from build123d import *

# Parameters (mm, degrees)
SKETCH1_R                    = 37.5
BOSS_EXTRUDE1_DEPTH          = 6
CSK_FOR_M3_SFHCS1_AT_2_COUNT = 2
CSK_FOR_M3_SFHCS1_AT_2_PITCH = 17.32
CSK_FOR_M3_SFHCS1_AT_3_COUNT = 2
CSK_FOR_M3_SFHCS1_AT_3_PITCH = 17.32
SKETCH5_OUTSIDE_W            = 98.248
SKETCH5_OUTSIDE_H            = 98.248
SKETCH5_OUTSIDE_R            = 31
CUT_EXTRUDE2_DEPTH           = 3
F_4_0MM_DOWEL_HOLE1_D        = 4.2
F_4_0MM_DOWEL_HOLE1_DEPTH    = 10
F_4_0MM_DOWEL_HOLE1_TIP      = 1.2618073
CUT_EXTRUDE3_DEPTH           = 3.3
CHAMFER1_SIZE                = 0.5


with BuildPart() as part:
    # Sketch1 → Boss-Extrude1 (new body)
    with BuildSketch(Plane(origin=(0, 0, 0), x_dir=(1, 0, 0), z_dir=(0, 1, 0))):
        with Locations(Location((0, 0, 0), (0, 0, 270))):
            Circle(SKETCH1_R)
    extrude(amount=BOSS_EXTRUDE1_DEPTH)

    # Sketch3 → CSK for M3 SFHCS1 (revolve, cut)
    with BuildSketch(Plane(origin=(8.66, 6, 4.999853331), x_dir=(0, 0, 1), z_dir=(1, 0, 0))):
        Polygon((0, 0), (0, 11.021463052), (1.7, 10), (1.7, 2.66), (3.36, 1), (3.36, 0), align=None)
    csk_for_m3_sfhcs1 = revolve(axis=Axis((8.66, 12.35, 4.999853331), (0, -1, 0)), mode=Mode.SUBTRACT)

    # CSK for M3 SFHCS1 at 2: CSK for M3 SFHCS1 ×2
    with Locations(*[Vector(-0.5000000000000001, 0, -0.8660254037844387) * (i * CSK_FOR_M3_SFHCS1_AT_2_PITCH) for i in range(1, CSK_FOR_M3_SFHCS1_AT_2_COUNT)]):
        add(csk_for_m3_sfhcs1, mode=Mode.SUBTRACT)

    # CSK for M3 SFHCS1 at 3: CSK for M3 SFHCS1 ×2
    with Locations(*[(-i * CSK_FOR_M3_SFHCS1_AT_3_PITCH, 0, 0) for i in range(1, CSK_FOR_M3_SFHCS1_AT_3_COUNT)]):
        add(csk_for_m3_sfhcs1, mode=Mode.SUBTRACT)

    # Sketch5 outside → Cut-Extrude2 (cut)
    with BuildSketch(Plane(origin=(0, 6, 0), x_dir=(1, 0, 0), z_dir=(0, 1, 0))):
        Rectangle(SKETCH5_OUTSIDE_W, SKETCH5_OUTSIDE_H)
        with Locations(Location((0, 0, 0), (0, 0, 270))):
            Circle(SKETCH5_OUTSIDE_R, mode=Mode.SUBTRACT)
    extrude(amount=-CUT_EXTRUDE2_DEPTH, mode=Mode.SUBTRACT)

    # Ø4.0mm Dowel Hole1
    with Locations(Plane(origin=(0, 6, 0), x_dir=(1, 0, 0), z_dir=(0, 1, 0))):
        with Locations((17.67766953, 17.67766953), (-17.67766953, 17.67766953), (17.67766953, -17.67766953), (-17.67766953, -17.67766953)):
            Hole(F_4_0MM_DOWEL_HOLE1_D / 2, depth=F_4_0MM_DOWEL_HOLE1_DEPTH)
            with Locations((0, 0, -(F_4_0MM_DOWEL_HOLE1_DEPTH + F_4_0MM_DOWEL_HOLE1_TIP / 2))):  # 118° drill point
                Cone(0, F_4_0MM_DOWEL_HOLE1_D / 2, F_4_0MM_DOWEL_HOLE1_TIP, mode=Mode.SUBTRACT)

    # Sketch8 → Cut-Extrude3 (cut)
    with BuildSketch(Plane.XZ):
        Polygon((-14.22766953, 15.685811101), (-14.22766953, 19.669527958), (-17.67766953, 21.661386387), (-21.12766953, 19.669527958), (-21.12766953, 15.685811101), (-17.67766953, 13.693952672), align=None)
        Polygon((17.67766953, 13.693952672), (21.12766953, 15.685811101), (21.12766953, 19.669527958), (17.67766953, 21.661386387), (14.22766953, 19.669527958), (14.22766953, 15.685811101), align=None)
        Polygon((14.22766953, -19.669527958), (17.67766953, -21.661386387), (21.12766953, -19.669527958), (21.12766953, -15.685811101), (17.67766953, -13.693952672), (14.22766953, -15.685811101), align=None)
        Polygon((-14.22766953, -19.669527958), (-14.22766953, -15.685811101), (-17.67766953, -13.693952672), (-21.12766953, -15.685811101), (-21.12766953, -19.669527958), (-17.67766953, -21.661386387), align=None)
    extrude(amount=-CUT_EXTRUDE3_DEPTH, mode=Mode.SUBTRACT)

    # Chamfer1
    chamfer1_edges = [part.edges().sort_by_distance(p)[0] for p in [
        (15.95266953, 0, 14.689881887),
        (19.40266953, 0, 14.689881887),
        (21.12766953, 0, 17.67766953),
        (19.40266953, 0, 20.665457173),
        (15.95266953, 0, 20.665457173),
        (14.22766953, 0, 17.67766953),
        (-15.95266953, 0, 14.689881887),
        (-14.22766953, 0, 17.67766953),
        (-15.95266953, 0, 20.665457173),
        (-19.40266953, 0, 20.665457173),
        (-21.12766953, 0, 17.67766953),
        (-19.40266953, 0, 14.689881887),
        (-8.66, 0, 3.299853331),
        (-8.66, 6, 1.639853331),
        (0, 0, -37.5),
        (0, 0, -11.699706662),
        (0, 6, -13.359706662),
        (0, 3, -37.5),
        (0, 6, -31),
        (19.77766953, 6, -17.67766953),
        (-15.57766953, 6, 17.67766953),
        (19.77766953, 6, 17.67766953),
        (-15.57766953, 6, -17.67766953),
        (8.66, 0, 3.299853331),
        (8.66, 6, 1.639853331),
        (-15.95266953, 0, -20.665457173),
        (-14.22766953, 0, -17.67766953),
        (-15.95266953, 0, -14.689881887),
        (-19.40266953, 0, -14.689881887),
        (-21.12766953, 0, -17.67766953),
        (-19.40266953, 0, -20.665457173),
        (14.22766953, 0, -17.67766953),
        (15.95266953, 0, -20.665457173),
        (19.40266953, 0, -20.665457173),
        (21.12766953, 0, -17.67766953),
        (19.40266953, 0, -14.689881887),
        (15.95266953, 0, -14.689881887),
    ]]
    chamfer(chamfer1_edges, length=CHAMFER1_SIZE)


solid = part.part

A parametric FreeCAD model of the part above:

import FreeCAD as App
import Part
import Sketcher
Q = App.Units.Quantity


def edges_at(feature, points):
    """Names of the edges that pass closest to the given points."""
    edges = feature.Shape.Edges
    near = lambda p: min(range(len(edges)), key=lambda i: edges[i].distToShape(Part.Vertex(*p))[0])
    return sorted({f"Edge{near(p) + 1}" for p in points})

doc = App.newDocument("Part")
body = doc.addObject("PartDesign::Body", "Body")

# Sketch on XZ plane
sketch1 = body.newObject("Sketcher::SketchObject", "Sketch")
sketch1.AttachmentSupport = (doc.getObject("XZ_Plane"), [""])
sketch1.MapMode = "FlatFace"
sketch1.addGeometry(Part.Circle(App.Vector(0, 0, 0), App.Vector(0, 0, 1), 37.5), False)
sketch1.addConstraint(Sketcher.Constraint("Coincident", 0, 3, -1, 1))
sketch1.addConstraint(Sketcher.Constraint("Diameter", 0, Q("75 mm")))
pad1 = body.newObject("PartDesign::Pad", "Pad")
pad1.Profile = sketch1
pad1.Length = 6
pad1.Reversed = True

# Sketch on YZ plane
sketch2 = body.newObject("Sketcher::SketchObject", "Sketch001")
sketch2.AttachmentSupport = (doc.getObject("YZ_Plane"), [""])
sketch2.MapMode = "FlatFace"
sketch2.AttachmentOffset = App.Placement(App.Vector(0, 0, 8.66), App.Rotation())
sketch2.addGeometry(Part.LineSegment(App.Vector(-5.021463, 4.999853, 0), App.Vector(6, 4.999853, 0)), False)
sketch2.addGeometry(Part.LineSegment(App.Vector(6, 4.999853, 0), App.Vector(6, 8.359853, 0)), False)
sketch2.addGeometry(Part.LineSegment(App.Vector(6, 8.359853, 0), App.Vector(5, 8.359853, 0)), False)
sketch2.addGeometry(Part.LineSegment(App.Vector(5, 8.359853, 0), App.Vector(3.34, 6.699853, 0)), False)
sketch2.addGeometry(Part.LineSegment(App.Vector(3.34, 6.699853, 0), App.Vector(-4, 6.699853, 0)), False)
sketch2.addGeometry(Part.LineSegment(App.Vector(-4, 6.699853, 0), App.Vector(-5.021463, 4.999853, 0)), False)
sketch2.addGeometry(Part.LineSegment(App.Vector(6, 4.999853, 0), App.Vector(-5.021463, 4.999853, 0)), True)  # axis
sketch2.addConstraint(Sketcher.Constraint("Coincident", 0, 2, 1, 1))
sketch2.addConstraint(Sketcher.Constraint("Coincident", 1, 2, 2, 1))
sketch2.addConstraint(Sketcher.Constraint("Coincident", 2, 2, 3, 1))
sketch2.addConstraint(Sketcher.Constraint("Coincident", 3, 2, 4, 1))
sketch2.addConstraint(Sketcher.Constraint("Coincident", 4, 2, 5, 1))
sketch2.addConstraint(Sketcher.Constraint("Coincident", 5, 2, 0, 1))
sketch2.addConstraint(Sketcher.Constraint("Horizontal", 0))
sketch2.addConstraint(Sketcher.Constraint("Vertical", 1))
sketch2.addConstraint(Sketcher.Constraint("Horizontal", 2))
sketch2.addConstraint(Sketcher.Constraint("Horizontal", 4))
sketch2.addConstraint(Sketcher.Constraint("Horizontal", 6))
sketch2.addConstraint(Sketcher.Constraint("Coincident", 6, 1, 0, 2))
sketch2.addConstraint(Sketcher.Constraint("Equal", 0, 6))
sketch2.addConstraint(Sketcher.Constraint("DistanceX", 2, 2, 2, 1, Q("1 mm")))
sketch2.addConstraint(Sketcher.Constraint("Angle", 3, Q("-135 deg")))
sketch2.addConstraint(Sketcher.Constraint("Angle", 5, Q("-121 deg")))
sketch2.addConstraint(Sketcher.Constraint("DistanceX", -1, 1, 0, 2, Q("6 mm")))
sketch2.addConstraint(Sketcher.Constraint("DistanceX", 4, 2, -1, 1, Q("4 mm")))
sketch2.addConstraint(Sketcher.Constraint("DistanceX", 4, 2, 4, 1, Q("7.34 mm")))
sketch2.addConstraint(Sketcher.Constraint("DistanceY", 1, 1, 1, 2, Q("3.36 mm")))
sketch2.addConstraint(Sketcher.Constraint("DistanceY", -1, 1, 0, 2, Q("4.999853 mm")))
groove = body.newObject("PartDesign::Groove", "Groove")
groove.Profile = sketch2
groove.ReferenceAxis = (sketch2, ["Axis0"])
groove.Angle = 360
doc.recompute()

datumline = body.newObject("PartDesign::Line", "DatumLine")
datumline.Placement = App.Placement(App.Vector(0, 0, 0), App.Rotation(App.Vector(0, 0, 1), App.Vector(-0.5, 0, -0.866025404)))
linearpattern = body.newObject("PartDesign::LinearPattern", "LinearPattern")
linearpattern.Originals = [groove]
linearpattern.Direction = (datumline, [""])
linearpattern.Mode = "offset"
linearpattern.Offset = 17.32
linearpattern.Occurrences = 2
body.Tip = linearpattern
doc.recompute()

linearpattern2 = body.newObject("PartDesign::LinearPattern", "LinearPattern001")
linearpattern2.Originals = [groove]
linearpattern2.Direction = (doc.getObject("X_Axis"), [""])
linearpattern2.Mode = "offset"
linearpattern2.Offset = 17.32
linearpattern2.Occurrences = 2
linearpattern2.Reversed = True
body.Tip = linearpattern2

# Sketch on XZ plane
sketch3 = body.newObject("Sketcher::SketchObject", "Sketch002")
sketch3.AttachmentSupport = (doc.getObject("XZ_Plane"), [""])
sketch3.MapMode = "FlatFace"
sketch3.AttachmentOffset = App.Placement(App.Vector(0, 0, -6), App.Rotation())
sketch3.addGeometry(Part.LineSegment(App.Vector(-49.124, -49.124, 0), App.Vector(-49.124, 49.124, 0)), False)
sketch3.addGeometry(Part.LineSegment(App.Vector(-49.124, 49.124, 0), App.Vector(49.124, 49.124, 0)), False)
sketch3.addGeometry(Part.LineSegment(App.Vector(49.124, 49.124, 0), App.Vector(49.124, -49.124, 0)), False)
sketch3.addGeometry(Part.LineSegment(App.Vector(49.124, -49.124, 0), App.Vector(-49.124, -49.124, 0)), False)
sketch3.addGeometry(Part.Circle(App.Vector(0, 0, 0), App.Vector(0, 0, 1), 31), False)
sketch3.addConstraint(Sketcher.Constraint("Coincident", 0, 2, 1, 1))
sketch3.addConstraint(Sketcher.Constraint("Coincident", 1, 2, 2, 1))
sketch3.addConstraint(Sketcher.Constraint("Coincident", 2, 2, 3, 1))
sketch3.addConstraint(Sketcher.Constraint("Coincident", 3, 2, 0, 1))
sketch3.addConstraint(Sketcher.Constraint("Vertical", 0))
sketch3.addConstraint(Sketcher.Constraint("Horizontal", 1))
sketch3.addConstraint(Sketcher.Constraint("Vertical", 2))
sketch3.addConstraint(Sketcher.Constraint("Horizontal", 3))
sketch3.addConstraint(Sketcher.Constraint("Coincident", 4, 3, -1, 1))
sketch3.addConstraint(Sketcher.Constraint("Symmetric", 0, 2, 2, 2, -1, 1))
sketch3.addConstraint(Sketcher.Constraint("Equal", 3, 0))
sketch3.addConstraint(Sketcher.Constraint("Diameter", 4, Q("62 mm")))
sketch3.addConstraint(Sketcher.Constraint("DistanceX", 1, 1, 1, 2, Q("98.248 mm")))
pocket1 = body.newObject("PartDesign::Pocket", "Pocket")
pocket1.Profile = sketch3
pocket1.Length = 3
pocket1.Reversed = True

# Sketch on XZ plane
sketch4 = body.newObject("Sketcher::SketchObject", "Sketch003")
sketch4.AttachmentSupport = (doc.getObject("XZ_Plane"), [""])
sketch4.MapMode = "FlatFace"
sketch4.AttachmentOffset = App.Placement(App.Vector(0, 0, -6), App.Rotation())
sketch4.addGeometry(Part.Circle(App.Vector(17.67767, -17.67767, 0), App.Vector(0, 0, 1), 2.1), False)
sketch4.addGeometry(Part.Circle(App.Vector(-17.67767, -17.67767, 0), App.Vector(0, 0, 1), 2.1), False)
sketch4.addGeometry(Part.Circle(App.Vector(17.67767, 17.67767, 0), App.Vector(0, 0, 1), 2.1), False)
sketch4.addGeometry(Part.Circle(App.Vector(-17.67767, 17.67767, 0), App.Vector(0, 0, 1), 2.1), False)
sketch4.addConstraint(Sketcher.Constraint("Equal", 0, 1))
sketch4.addConstraint(Sketcher.Constraint("Equal", 1, 2))
sketch4.addConstraint(Sketcher.Constraint("Equal", 2, 3))
sketch4.addConstraint(Sketcher.Constraint("Symmetric", 1, 3, 2, 3, -1, 1))
sketch4.addConstraint(Sketcher.Constraint("Symmetric", 0, 3, 3, 3, -1, 1))
sketch4.addConstraint(Sketcher.Constraint("Symmetric", 0, 3, 1, 3, -2))
sketch4.addConstraint(Sketcher.Constraint("Diameter", 0, Q("4.2 mm")))
sketch4.addConstraint(Sketcher.Constraint("DistanceX", -1, 1, 0, 3, Q("17.67767 mm")))
sketch4.addConstraint(Sketcher.Constraint("DistanceY", 0, 3, -1, 1, Q("17.67767 mm")))
doc.recompute()
hole = body.newObject("PartDesign::Hole", "Hole")
hole.Profile = sketch4
hole.ThreadType = "None"
hole.Diameter = 4.2
hole.DepthType = "Dimension"
hole.Depth = 10
hole.DrillPoint = "Angled"
hole.DrillPointAngle = 118
hole.Reversed = True

# Sketch on XZ plane
sketch5 = body.newObject("Sketcher::SketchObject", "Sketch004")
sketch5.AttachmentSupport = (doc.getObject("XZ_Plane"), [""])
sketch5.MapMode = "FlatFace"
sketch5.addGeometry(Part.LineSegment(App.Vector(-14.22767, 15.685811, 0), App.Vector(-14.22767, 19.669528, 0)), False)
sketch5.addGeometry(Part.LineSegment(App.Vector(-14.22767, 19.669528, 0), App.Vector(-17.67767, 21.661386, 0)), False)
sketch5.addGeometry(Part.LineSegment(App.Vector(-17.67767, 21.661386, 0), App.Vector(-21.12767, 19.669528, 0)), False)
sketch5.addGeometry(Part.LineSegment(App.Vector(-21.12767, 19.669528, 0), App.Vector(-21.12767, 15.685811, 0)), False)
sketch5.addGeometry(Part.LineSegment(App.Vector(-21.12767, 15.685811, 0), App.Vector(-17.67767, 13.693953, 0)), False)
sketch5.addGeometry(Part.LineSegment(App.Vector(-17.67767, 13.693953, 0), App.Vector(-14.22767, 15.685811, 0)), False)
sketch5.addGeometry(Part.LineSegment(App.Vector(17.67767, 13.693953, 0), App.Vector(21.12767, 15.685811, 0)), False)
sketch5.addGeometry(Part.LineSegment(App.Vector(21.12767, 15.685811, 0), App.Vector(21.12767, 19.669528, 0)), False)
sketch5.addGeometry(Part.LineSegment(App.Vector(21.12767, 19.669528, 0), App.Vector(17.67767, 21.661386, 0)), False)
sketch5.addGeometry(Part.LineSegment(App.Vector(17.67767, 21.661386, 0), App.Vector(14.22767, 19.669528, 0)), False)
sketch5.addGeometry(Part.LineSegment(App.Vector(14.22767, 19.669528, 0), App.Vector(14.22767, 15.685811, 0)), False)
sketch5.addGeometry(Part.LineSegment(App.Vector(14.22767, 15.685811, 0), App.Vector(17.67767, 13.693953, 0)), False)
sketch5.addGeometry(Part.LineSegment(App.Vector(14.22767, -19.669528, 0), App.Vector(17.67767, -21.661386, 0)), False)
sketch5.addGeometry(Part.LineSegment(App.Vector(17.67767, -21.661386, 0), App.Vector(21.12767, -19.669528, 0)), False)
sketch5.addGeometry(Part.LineSegment(App.Vector(21.12767, -19.669528, 0), App.Vector(21.12767, -15.685811, 0)), False)
sketch5.addGeometry(Part.LineSegment(App.Vector(21.12767, -15.685811, 0), App.Vector(17.67767, -13.693953, 0)), False)
sketch5.addGeometry(Part.LineSegment(App.Vector(17.67767, -13.693953, 0), App.Vector(14.22767, -15.685811, 0)), False)
sketch5.addGeometry(Part.LineSegment(App.Vector(14.22767, -15.685811, 0), App.Vector(14.22767, -19.669528, 0)), False)
sketch5.addGeometry(Part.LineSegment(App.Vector(-14.22767, -19.669528, 0), App.Vector(-14.22767, -15.685811, 0)), False)
sketch5.addGeometry(Part.LineSegment(App.Vector(-14.22767, -15.685811, 0), App.Vector(-17.67767, -13.693953, 0)), False)
sketch5.addGeometry(Part.LineSegment(App.Vector(-17.67767, -13.693953, 0), App.Vector(-21.12767, -15.685811, 0)), False)
sketch5.addGeometry(Part.LineSegment(App.Vector(-21.12767, -15.685811, 0), App.Vector(-21.12767, -19.669528, 0)), False)
sketch5.addGeometry(Part.LineSegment(App.Vector(-21.12767, -19.669528, 0), App.Vector(-17.67767, -21.661386, 0)), False)
sketch5.addGeometry(Part.LineSegment(App.Vector(-17.67767, -21.661386, 0), App.Vector(-14.22767, -19.669528, 0)), False)
sketch5.addConstraint(Sketcher.Constraint("Coincident", 0, 2, 1, 1))
sketch5.addConstraint(Sketcher.Constraint("Coincident", 1, 2, 2, 1))
sketch5.addConstraint(Sketcher.Constraint("Coincident", 2, 2, 3, 1))
sketch5.addConstraint(Sketcher.Constraint("Coincident", 3, 2, 4, 1))
sketch5.addConstraint(Sketcher.Constraint("Coincident", 4, 2, 5, 1))
sketch5.addConstraint(Sketcher.Constraint("Coincident", 5, 2, 0, 1))
sketch5.addConstraint(Sketcher.Constraint("Coincident", 6, 2, 7, 1))
sketch5.addConstraint(Sketcher.Constraint("Coincident", 7, 2, 8, 1))
sketch5.addConstraint(Sketcher.Constraint("Coincident", 8, 2, 9, 1))
sketch5.addConstraint(Sketcher.Constraint("Coincident", 9, 2, 10, 1))
sketch5.addConstraint(Sketcher.Constraint("Coincident", 10, 2, 11, 1))
sketch5.addConstraint(Sketcher.Constraint("Coincident", 11, 2, 6, 1))
sketch5.addConstraint(Sketcher.Constraint("Coincident", 12, 2, 13, 1))
sketch5.addConstraint(Sketcher.Constraint("Coincident", 13, 2, 14, 1))
sketch5.addConstraint(Sketcher.Constraint("Coincident", 14, 2, 15, 1))
sketch5.addConstraint(Sketcher.Constraint("Coincident", 15, 2, 16, 1))
sketch5.addConstraint(Sketcher.Constraint("Coincident", 16, 2, 17, 1))
sketch5.addConstraint(Sketcher.Constraint("Coincident", 17, 2, 12, 1))
sketch5.addConstraint(Sketcher.Constraint("Coincident", 18, 2, 19, 1))
sketch5.addConstraint(Sketcher.Constraint("Coincident", 19, 2, 20, 1))
sketch5.addConstraint(Sketcher.Constraint("Coincident", 20, 2, 21, 1))
sketch5.addConstraint(Sketcher.Constraint("Coincident", 21, 2, 22, 1))
sketch5.addConstraint(Sketcher.Constraint("Coincident", 22, 2, 23, 1))
sketch5.addConstraint(Sketcher.Constraint("Coincident", 23, 2, 18, 1))
sketch5.addConstraint(Sketcher.Constraint("Vertical", 0))
sketch5.addConstraint(Sketcher.Constraint("Vertical", 3))
sketch5.addConstraint(Sketcher.Constraint("Vertical", 7))
sketch5.addConstraint(Sketcher.Constraint("Vertical", 10))
sketch5.addConstraint(Sketcher.Constraint("Vertical", 14))
sketch5.addConstraint(Sketcher.Constraint("Vertical", 17))
sketch5.addConstraint(Sketcher.Constraint("Vertical", 18))
sketch5.addConstraint(Sketcher.Constraint("Vertical", 21))
sketch5.addConstraint(Sketcher.Constraint("Symmetric", 1, 2, 12, 2, -1, 1))
sketch5.addConstraint(Sketcher.Constraint("Symmetric", 2, 2, 13, 2, -1, 1))
sketch5.addConstraint(Sketcher.Constraint("Symmetric", 4, 2, 15, 2, -1, 1))
sketch5.addConstraint(Sketcher.Constraint("Symmetric", 5, 2, 16, 2, -1, 1))
sketch5.addConstraint(Sketcher.Constraint("Symmetric", 10, 2, 18, 2, -1, 1))
sketch5.addConstraint(Sketcher.Constraint("Symmetric", 11, 2, 19, 2, -1, 1))
sketch5.addConstraint(Sketcher.Constraint("Symmetric", 6, 2, 20, 2, -1, 1))
sketch5.addConstraint(Sketcher.Constraint("Symmetric", 8, 2, 22, 2, -1, 1))
sketch5.addConstraint(Sketcher.Constraint("Symmetric", 3, 2, 6, 2, -2))
sketch5.addConstraint(Sketcher.Constraint("Symmetric", 1, 2, 8, 2, -2))
sketch5.addConstraint(Sketcher.Constraint("Symmetric", 0, 2, 9, 2, -2))
sketch5.addConstraint(Sketcher.Constraint("Symmetric", 4, 2, 11, 2, -2))
sketch5.addConstraint(Sketcher.Constraint("Parallel", 1, 4))
sketch5.addConstraint(Sketcher.Constraint("Parallel", 2, 5))
sketch5.addConstraint(Sketcher.Constraint("Parallel", 5, 6))
sketch5.addConstraint(Sketcher.Constraint("Parallel", 4, 8))
sketch5.addConstraint(Sketcher.Constraint("Parallel", 8, 11))
sketch5.addConstraint(Sketcher.Constraint("Parallel", 11, 12))
sketch5.addConstraint(Sketcher.Constraint("Parallel", 12, 15))
sketch5.addConstraint(Sketcher.Constraint("Parallel", 19, 22))
sketch5.addConstraint(Sketcher.Constraint("Parallel", 20, 23))
sketch5.addConstraint(Sketcher.Constraint("Horizontal", 0, 2, 2, 2))
sketch5.addConstraint(Sketcher.Constraint("Horizontal", 3, 2, 5, 2))
sketch5.addConstraint(Sketcher.Constraint("Angle", 1, Q("150 deg")))
sketch5.addConstraint(Sketcher.Constraint("DistanceX", 2, 2, 0, 2, Q("6.9 mm")))
sketch5.addConstraint(Sketcher.Constraint("DistanceY", 0, 1, 0, 2, Q("3.983717 mm")))
sketch5.addConstraint(Sketcher.Constraint("DistanceX", 0, 2, -1, 1, Q("14.22767 mm")))
sketch5.addConstraint(Sketcher.Constraint("DistanceY", -1, 1, 3, 2, Q("15.685811 mm")))
pocket2 = body.newObject("PartDesign::Pocket", "Pocket001")
pocket2.Profile = sketch5
pocket2.Length = 3.3
doc.recompute()

chamfer = body.newObject("PartDesign::Chamfer", "Chamfer")
chamfer.Base = (pocket2, edges_at(pocket2, [
    (15.953, 0, 14.69),
    (19.403, 0, 14.69),
    (21.128, 0, 17.678),
    (19.403, 0, 20.665),
    (15.953, 0, 20.665),
    (14.228, 0, 17.678),
    (-15.953, 0, 14.69),
    (-14.228, 0, 17.678),
    (-15.953, 0, 20.665),
    (-19.403, 0, 20.665),
    (-21.128, 0, 17.678),
    (-19.403, 0, 14.69),
    (-8.66, 0, 3.3),
    (-8.66, 6, 1.64),
    (0, 0, -37.5),
    (0, 0, -11.7),
    (0, 6, -13.36),
    (0, 3, -37.5),
    (0, 6, -31),
    (19.778, 6, -17.678),
    (-15.578, 6, 17.678),
    (19.778, 6, 17.678),
    (-15.578, 6, -17.678),
    (8.66, 0, 3.3),
    (8.66, 6, 1.64),
    (-15.953, 0, -20.665),
    (-14.228, 0, -17.678),
    (-15.953, 0, -14.69),
    (-19.403, 0, -14.69),
    (-21.128, 0, -17.678),
    (-19.403, 0, -20.665),
    (14.228, 0, -17.678),
    (15.953, 0, -20.665),
    (19.403, 0, -20.665),
    (21.128, 0, -17.678),
    (19.403, 0, -14.69),
    (15.953, 0, -14.69),
]))
chamfer.Size = 0.5

doc.recompute()
